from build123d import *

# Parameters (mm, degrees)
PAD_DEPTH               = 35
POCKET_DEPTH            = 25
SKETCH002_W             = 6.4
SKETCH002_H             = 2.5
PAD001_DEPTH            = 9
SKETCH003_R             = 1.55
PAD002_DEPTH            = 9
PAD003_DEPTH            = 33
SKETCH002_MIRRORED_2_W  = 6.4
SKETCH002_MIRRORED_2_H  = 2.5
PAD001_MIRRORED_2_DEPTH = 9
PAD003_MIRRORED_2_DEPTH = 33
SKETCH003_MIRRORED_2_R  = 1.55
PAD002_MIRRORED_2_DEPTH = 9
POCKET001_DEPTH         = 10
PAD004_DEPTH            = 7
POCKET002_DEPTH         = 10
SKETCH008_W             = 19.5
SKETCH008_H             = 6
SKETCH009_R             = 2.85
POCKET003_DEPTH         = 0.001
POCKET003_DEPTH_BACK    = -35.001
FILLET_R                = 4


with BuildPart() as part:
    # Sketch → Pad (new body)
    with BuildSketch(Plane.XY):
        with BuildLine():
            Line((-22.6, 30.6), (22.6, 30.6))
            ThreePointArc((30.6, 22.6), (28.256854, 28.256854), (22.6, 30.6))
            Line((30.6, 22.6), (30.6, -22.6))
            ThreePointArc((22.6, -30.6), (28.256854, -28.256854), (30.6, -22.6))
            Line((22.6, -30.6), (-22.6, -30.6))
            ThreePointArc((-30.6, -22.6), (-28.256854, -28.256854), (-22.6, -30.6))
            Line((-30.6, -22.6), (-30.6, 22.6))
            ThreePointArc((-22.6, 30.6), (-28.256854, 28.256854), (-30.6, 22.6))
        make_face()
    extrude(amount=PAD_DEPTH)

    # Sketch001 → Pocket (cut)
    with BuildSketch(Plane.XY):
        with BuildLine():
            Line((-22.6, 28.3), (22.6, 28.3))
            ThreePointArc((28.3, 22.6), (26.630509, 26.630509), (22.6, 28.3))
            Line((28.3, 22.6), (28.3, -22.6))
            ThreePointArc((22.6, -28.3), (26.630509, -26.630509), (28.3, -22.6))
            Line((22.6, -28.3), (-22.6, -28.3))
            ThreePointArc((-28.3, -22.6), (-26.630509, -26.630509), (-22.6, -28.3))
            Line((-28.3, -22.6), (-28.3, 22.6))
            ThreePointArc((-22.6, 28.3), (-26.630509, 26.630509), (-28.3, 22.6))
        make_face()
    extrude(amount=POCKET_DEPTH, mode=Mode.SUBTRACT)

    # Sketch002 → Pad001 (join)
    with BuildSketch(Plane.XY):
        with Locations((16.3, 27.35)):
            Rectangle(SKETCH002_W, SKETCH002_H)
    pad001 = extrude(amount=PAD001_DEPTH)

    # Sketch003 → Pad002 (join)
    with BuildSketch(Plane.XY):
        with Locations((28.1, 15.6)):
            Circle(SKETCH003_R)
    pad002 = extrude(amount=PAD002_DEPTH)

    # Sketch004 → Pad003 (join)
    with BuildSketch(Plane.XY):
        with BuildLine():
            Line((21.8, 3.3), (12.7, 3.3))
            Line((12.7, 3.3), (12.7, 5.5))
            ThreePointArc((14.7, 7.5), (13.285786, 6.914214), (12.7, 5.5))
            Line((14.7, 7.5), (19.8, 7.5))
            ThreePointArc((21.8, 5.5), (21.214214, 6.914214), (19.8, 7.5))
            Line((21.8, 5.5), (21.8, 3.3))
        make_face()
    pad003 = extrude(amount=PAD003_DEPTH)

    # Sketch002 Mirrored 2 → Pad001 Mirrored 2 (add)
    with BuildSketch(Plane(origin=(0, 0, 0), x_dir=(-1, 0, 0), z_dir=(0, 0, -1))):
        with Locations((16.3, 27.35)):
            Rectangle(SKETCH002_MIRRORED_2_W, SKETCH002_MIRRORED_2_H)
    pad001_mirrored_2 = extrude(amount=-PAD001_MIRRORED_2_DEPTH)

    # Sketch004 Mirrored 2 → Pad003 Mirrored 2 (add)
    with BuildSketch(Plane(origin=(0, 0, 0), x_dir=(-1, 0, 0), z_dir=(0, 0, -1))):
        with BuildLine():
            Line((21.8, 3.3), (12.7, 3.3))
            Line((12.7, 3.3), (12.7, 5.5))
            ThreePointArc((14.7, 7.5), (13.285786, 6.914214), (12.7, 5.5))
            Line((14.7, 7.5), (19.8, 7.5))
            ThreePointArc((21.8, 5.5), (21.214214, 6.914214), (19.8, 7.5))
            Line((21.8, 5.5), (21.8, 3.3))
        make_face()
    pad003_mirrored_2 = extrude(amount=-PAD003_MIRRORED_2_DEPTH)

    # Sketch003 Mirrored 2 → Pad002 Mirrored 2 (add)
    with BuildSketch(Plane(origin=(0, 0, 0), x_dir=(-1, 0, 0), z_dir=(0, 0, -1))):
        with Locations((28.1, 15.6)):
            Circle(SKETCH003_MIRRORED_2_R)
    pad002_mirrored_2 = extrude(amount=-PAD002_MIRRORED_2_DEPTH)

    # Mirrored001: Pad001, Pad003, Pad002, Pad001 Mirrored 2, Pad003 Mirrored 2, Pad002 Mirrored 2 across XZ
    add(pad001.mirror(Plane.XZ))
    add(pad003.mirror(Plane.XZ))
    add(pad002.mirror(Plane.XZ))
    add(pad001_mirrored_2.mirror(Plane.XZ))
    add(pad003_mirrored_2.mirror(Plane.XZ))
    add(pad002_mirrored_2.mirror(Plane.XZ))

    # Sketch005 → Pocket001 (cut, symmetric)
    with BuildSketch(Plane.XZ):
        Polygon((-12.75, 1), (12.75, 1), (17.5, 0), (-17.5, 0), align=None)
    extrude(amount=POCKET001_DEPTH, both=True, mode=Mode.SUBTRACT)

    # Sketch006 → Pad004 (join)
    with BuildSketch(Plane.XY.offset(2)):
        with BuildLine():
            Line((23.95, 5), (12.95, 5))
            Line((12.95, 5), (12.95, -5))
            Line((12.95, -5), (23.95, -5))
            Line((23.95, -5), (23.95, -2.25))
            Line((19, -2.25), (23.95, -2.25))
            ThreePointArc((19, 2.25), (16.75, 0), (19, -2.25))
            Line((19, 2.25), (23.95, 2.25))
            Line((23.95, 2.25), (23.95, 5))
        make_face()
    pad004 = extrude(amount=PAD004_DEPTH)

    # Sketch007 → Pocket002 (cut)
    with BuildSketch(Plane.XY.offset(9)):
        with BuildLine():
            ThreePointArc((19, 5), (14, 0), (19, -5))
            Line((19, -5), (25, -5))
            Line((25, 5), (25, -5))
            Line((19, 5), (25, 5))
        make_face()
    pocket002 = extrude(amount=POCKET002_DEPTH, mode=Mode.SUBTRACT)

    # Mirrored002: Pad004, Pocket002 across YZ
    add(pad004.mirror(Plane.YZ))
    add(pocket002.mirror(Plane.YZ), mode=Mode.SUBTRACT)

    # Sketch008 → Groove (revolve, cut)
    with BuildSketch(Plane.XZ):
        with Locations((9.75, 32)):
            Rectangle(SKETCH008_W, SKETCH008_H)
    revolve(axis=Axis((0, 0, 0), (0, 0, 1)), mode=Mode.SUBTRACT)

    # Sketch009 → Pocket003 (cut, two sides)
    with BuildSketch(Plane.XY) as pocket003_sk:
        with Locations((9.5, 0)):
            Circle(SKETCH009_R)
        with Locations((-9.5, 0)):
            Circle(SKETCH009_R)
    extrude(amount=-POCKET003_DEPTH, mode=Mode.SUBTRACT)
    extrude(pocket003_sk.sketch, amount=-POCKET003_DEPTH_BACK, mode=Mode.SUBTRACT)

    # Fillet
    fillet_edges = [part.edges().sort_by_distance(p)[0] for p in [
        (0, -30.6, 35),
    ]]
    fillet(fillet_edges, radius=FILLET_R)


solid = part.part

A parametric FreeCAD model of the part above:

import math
import FreeCAD as App
import Part
import Sketcher


def edges_at(feature, points):
    """Names of the edges that pass closest to the given points."""
    edges = feature.Shape.Edges
    near = lambda p: min(range(len(edges)), key=lambda i: edges[i].distToShape(Part.Vertex(*p))[0])
    return sorted({f"Edge{near(p) + 1}" for p in points})

doc = App.newDocument("Part")
params = doc.addObject("Spreadsheet::Sheet", "Params")
for row, (alias, value) in enumerate([
    ("sketch1_radius", "8.000001 mm"),
    ("sketch1_width", "45.2 mm"),
    ("pad1_length", "35 mm"),
    ("sketch2_radius", "5.699999 mm"),
    ("sketch2_width", "45.2 mm"),
    ("pocket1_length", "25 mm"),
    ("sketch3_width", "6.4 mm"),
    ("sketch3_height", "2.5 mm"),
    ("pad2_length", "9 mm"),
    ("sketch4_diameter", "3.1 mm"),
    ("pad3_length", "9 mm"),
    ("sketch5_radius", "1.999999 mm"),
    ("sketch5_width", "9.1 mm"),
    ("sketch5_height", "2.2 mm"),
    ("pad4_length", "33 mm"),
    ("sketch6_width", "6.4 mm"),
    ("sketch6_height", "2.5 mm"),
    ("pad5_length", "9 mm"),
    ("sketch7_radius", "1.999999 mm"),
    ("sketch7_width", "9.1 mm"),
    ("sketch7_height", "2.2 mm"),
    ("pad6_length", "33 mm"),
    ("sketch8_diameter", "3.1 mm"),
    ("pad7_length", "9 mm"),
    ("sketch9_width", "35 mm"),
    ("sketch9_width2", "25.5 mm"),
    ("pocket2_length", "20 mm"),
    ("sketch10_width", "11 mm"),
    ("sketch10_height", "10 mm"),
    ("sketch10_radius", "2.25 mm"),
    ("sketch10_width2", "4.95 mm"),
    ("pad8_length", "7 mm"),
    ("sketch11_radius", "5 mm"),
    ("sketch11_width", "6 mm"),
    ("pocket3_length", "10 mm"),
    ("sketch12_height", "6 mm"),
    ("sketch12_width", "19.5 mm"),
    ("groove_angle", "360 deg"),
    ("sketch13_diameter", "5.7 mm"),
    ("fillet_radius", "4 mm"),
], start=1):
    params.set(f"A{row}", alias)
    params.set(f"B{row}", "=" + value)
    params.setAlias(f"B{row}", alias)

body = doc.addObject("PartDesign::Body", "Body")

# Sketch on XY plane
sketch1 = body.newObject("Sketcher::SketchObject", "Sketch")
sketch1.AttachmentSupport = (doc.getObject("XY_Plane"), [""])
sketch1.MapMode = "FlatFace"
sketch1.addGeometry([
    Part.LineSegment(App.Vector(23, 31, 0), App.Vector(-23, 31, 0)),  # 0
    Part.ArcOfCircle(Part.Circle(App.Vector(-23, 23, 0), App.Vector(0, 0, 1), 8), math.radians(90), math.radians(180)),  # 1
    Part.LineSegment(App.Vector(-31, 23, 0), App.Vector(-31, -23, 0)),  # 2
    Part.ArcOfCircle(Part.Circle(App.Vector(-23, -23, 0), App.Vector(0, 0, 1), 8), math.radians(-180), math.radians(-90)),  # 3
    Part.LineSegment(App.Vector(-23, -31, 0), App.Vector(23, -31, 0)),  # 4
    Part.ArcOfCircle(Part.Circle(App.Vector(23, -23, 0), App.Vector(0, 0, 1), 8), math.radians(-90), math.radians(0)),  # 5
    Part.LineSegment(App.Vector(31, -23, 0), App.Vector(31, 23, 0)),  # 6
    Part.ArcOfCircle(Part.Circle(App.Vector(23, 23, 0), App.Vector(0, 0, 1), 8), math.radians(0), math.radians(90)),  # 7
], False)
sketch1.addConstraint([
    Sketcher.Constraint("Tangent", 0, 2, 1, 1),
    Sketcher.Constraint("Tangent", 1, 2, 2, 1),
    Sketcher.Constraint("Tangent", 2, 2, 3, 1),
    Sketcher.Constraint("Tangent", 3, 2, 4, 1),
    Sketcher.Constraint("Tangent", 4, 2, 5, 1),
    Sketcher.Constraint("Tangent", 5, 2, 6, 1),
    Sketcher.Constraint("Tangent", 6, 2, 7, 1),
    Sketcher.Constraint("Tangent", 7, 2, 0, 1),
    Sketcher.Constraint("Horizontal", 0),
    Sketcher.Constraint("Vertical", 2),
    Sketcher.Constraint("Horizontal", 4),
    Sketcher.Constraint("Vertical", 6),
    Sketcher.Constraint("Equal", 1, 3),
    Sketcher.Constraint("Equal", 3, 5),
    Sketcher.Constraint("Equal", 5, 7),
    Sketcher.Constraint("Symmetric", 1, 3, 5, 3, -1, 1),
    Sketcher.Constraint("Equal", 4, 2),
    Sketcher.Constraint("Radius", 1, 8.000001),
    Sketcher.Constraint("DistanceX", 0, 2, 0, 1, 45.2),
])
sketch1.setExpression("Constraints[17]", "Params.sketch1_radius")
sketch1.setExpression("Constraints[18]", "Params.sketch1_width")
pad1 = body.newObject("PartDesign::Pad", "Pad")
pad1.Profile = sketch1
pad1.setExpression("Length", "Params.pad1_length")

# Sketch on XY plane
sketch2 = body.newObject("Sketcher::SketchObject", "Sketch001")
sketch2.AttachmentSupport = (doc.getObject("XY_Plane"), [""])
sketch2.MapMode = "FlatFace"
sketch2.addGeometry([
    Part.LineSegment(App.Vector(23, 28, 0), App.Vector(-23, 28, 0)),  # 0
    Part.ArcOfCircle(Part.Circle(App.Vector(-23, 23, 0), App.Vector(0, 0, 1), 6), math.radians(90), math.radians(180)),  # 1
    Part.LineSegment(App.Vector(-28, 23, 0), App.Vector(-28, -23, 0)),  # 2
    Part.ArcOfCircle(Part.Circle(App.Vector(-23, -23, 0), App.Vector(0, 0, 1), 6), math.radians(180), math.radians(270)),  # 3
    Part.LineSegment(App.Vector(-23, -28, 0), App.Vector(23, -28, 0)),  # 4
    Part.ArcOfCircle(Part.Circle(App.Vector(23, -23, 0), App.Vector(0, 0, 1), 6), math.radians(-90), math.radians(0)),  # 5
    Part.LineSegment(App.Vector(28, -23, 0), App.Vector(28, 23, 0)),  # 6
    Part.ArcOfCircle(Part.Circle(App.Vector(23, 23, 0), App.Vector(0, 0, 1), 6), math.radians(0), math.radians(90)),  # 7
], False)
sketch2.addConstraint([
    Sketcher.Constraint("Tangent", 0, 2, 1, 1),
    Sketcher.Constraint("Tangent", 1, 2, 2, 1),
    Sketcher.Constraint("Tangent", 2, 2, 3, 1),
    Sketcher.Constraint("Tangent", 3, 2, 4, 1),
    Sketcher.Constraint("Tangent", 4, 2, 5, 1),
    Sketcher.Constraint("Tangent", 5, 2, 6, 1),
    Sketcher.Constraint("Tangent", 6, 2, 7, 1),
    Sketcher.Constraint("Tangent", 7, 2, 0, 1),
    Sketcher.Constraint("Horizontal", 0),
    Sketcher.Constraint("Vertical", 2),
    Sketcher.Constraint("Horizontal", 4),
    Sketcher.Constraint("Vertical", 6),
    Sketcher.Constraint("Equal", 1, 3),
    Sketcher.Constraint("Equal", 3, 5),
    Sketcher.Constraint("Equal", 5, 7),
    Sketcher.Constraint("Symmetric", 1, 3, 5, 3, -1, 1),
    Sketcher.Constraint("Equal", 4, 2),
    Sketcher.Constraint("Radius", 1, 5.699999),
    Sketcher.Constraint("DistanceX", 0, 2, 0, 1, 45.2),
])
sketch2.setExpression("Constraints[17]", "Params.sketch2_radius")
sketch2.setExpression("Constraints[18]", "Params.sketch2_width")
pocket1 = body.newObject("PartDesign::Pocket", "Pocket")
pocket1.Profile = sketch2
pocket1.setExpression("Length", "Params.pocket1_length")
pocket1.Reversed = True

# Sketch on XY plane
sketch3 = body.newObject("Sketcher::SketchObject", "Sketch002")
sketch3.AttachmentSupport = (doc.getObject("XY_Plane"), [""])
sketch3.MapMode = "FlatFace"
sketch3.addGeometry([
    Part.LineSegment(App.Vector(13.1, 28.6, 0), App.Vector(13.1, 26.1, 0)),
    Part.LineSegment(App.Vector(13.1, 26.1, 0), App.Vector(19.5, 26.1, 0)),
    Part.LineSegment(App.Vector(19.5, 26.1, 0), App.Vector(19.5, 28.6, 0)),
    Part.LineSegment(App.Vector(19.5, 28.6, 0), App.Vector(13.1, 28.6, 0)),
], False)
sketch3.addConstraint([
    Sketcher.Constraint("Coincident", 0, 2, 1, 1),
    Sketcher.Constraint("Coincident", 1, 2, 2, 1),
    Sketcher.Constraint("Coincident", 2, 2, 3, 1),
    Sketcher.Constraint("Coincident", 3, 2, 0, 1),
    Sketcher.Constraint("Vertical", 0),
    Sketcher.Constraint("Horizontal", 1),
    Sketcher.Constraint("Vertical", 2),
    Sketcher.Constraint("Horizontal", 3),
    Sketcher.Constraint("DistanceX", 1, 1, 1, 2, 6.4),
    Sketcher.Constraint("DistanceY", 0, 2, 0, 1, 2.5),
    Sketcher.Constraint("DistanceX", -1, 1, 0, 2, 13.1),
    Sketcher.Constraint("DistanceY", -1, 1, 0, 2, 26.1),
])
sketch3.setExpression("Constraints[8]", "Params.sketch3_width")
sketch3.setExpression("Constraints[9]", "Params.sketch3_height")
pad2 = body.newObject("PartDesign::Pad", "Pad001")
pad2.Profile = sketch3
pad2.setExpression("Length", "Params.pad2_length")

# Sketch on XY plane
sketch4 = body.newObject("Sketcher::SketchObject", "Sketch003")
sketch4.AttachmentSupport = (doc.getObject("XY_Plane"), [""])
sketch4.MapMode = "FlatFace"
sketch4.addGeometry(Part.Circle(App.Vector(28.1, 15.6, 0), App.Vector(0, 0, 1), 1.6), False)
sketch4.addConstraint([
    Sketcher.Constraint("Diameter", 0, 3.1),
    Sketcher.Constraint("DistanceX", -1, 1, 0, 3, 28.1),
    Sketcher.Constraint("DistanceY", -1, 1, 0, 3, 15.6),
])
sketch4.setExpression("Constraints[0]", "Params.sketch4_diameter")
pad3 = body.newObject("PartDesign::Pad", "Pad002")
pad3.Profile = sketch4
pad3.setExpression("Length", "Params.pad3_length")

# Sketch on XY plane
sketch5 = body.newObject("Sketcher::SketchObject", "Sketch004")
sketch5.AttachmentSupport = (doc.getObject("XY_Plane"), [""])
sketch5.MapMode = "FlatFace"
sketch5.addGeometry([
    Part.LineSegment(App.Vector(12.7, 3.3, 0), App.Vector(21.8, 3.3, 0)),  # 0
    Part.LineSegment(App.Vector(21.8, 3.3, 0), App.Vector(21.8, 5.5, 0)),  # 1
    Part.ArcOfCircle(Part.Circle(App.Vector(19.8, 5.5, 0), App.Vector(0, 0, 1), 2), math.radians(0), math.radians(90)),  # 2
    Part.LineSegment(App.Vector(19.8, 7.5, 0), App.Vector(14.7, 7.5, 0)),  # 3
    Part.ArcOfCircle(Part.Circle(App.Vector(14.7, 5.5, 0), App.Vector(0, 0, 1), 2), math.radians(90), math.radians(180)),  # 4
    Part.LineSegment(App.Vector(12.7, 5.5, 0), App.Vector(12.7, 3.3, 0)),  # 5
], False)
sketch5.addConstraint([
    Sketcher.Constraint("Coincident", 0, 2, 1, 1),
    Sketcher.Constraint("Tangent", 1, 2, 2, 1),
    Sketcher.Constraint("Tangent", 2, 2, 3, 1),
    Sketcher.Constraint("Tangent", 3, 2, 4, 1),
    Sketcher.Constraint("Tangent", 4, 2, 5, 1),
    Sketcher.Constraint("Coincident", 5, 2, 0, 1),
    Sketcher.Constraint("Horizontal", 0),
    Sketcher.Constraint("Vertical", 1),
    Sketcher.Constraint("Horizontal", 3),
    Sketcher.Constraint("Vertical", 5),
    Sketcher.Constraint("Equal", 2, 4),
    Sketcher.Constraint("Radius", 2, 1.999999),
    Sketcher.Constraint("DistanceX", 0, 1, 0, 2, 9.1),
    Sketcher.Constraint("DistanceY", 1, 1, 1, 2, 2.2),
    Sketcher.Constraint("DistanceX", -1, 1, 2, 3, 19.800001),
    Sketcher.Constraint("DistanceY", -1, 1, 2, 3, 5.500001),
])
sketch5.setExpression("Constraints[11]", "Params.sketch5_radius")
sketch5.setExpression("Constraints[12]", "Params.sketch5_width")
sketch5.setExpression("Constraints[13]", "Params.sketch5_height")
pad4 = body.newObject("PartDesign::Pad", "Pad003")
pad4.Profile = sketch5
pad4.setExpression("Length", "Params.pad4_length")

# Sketch on XY plane
sketch6 = body.newObject("Sketcher::SketchObject", "Sketch005")
sketch6.AttachmentSupport = (doc.getObject("XY_Plane"), [""])
sketch6.MapMode = "FlatFace"
sketch6.addGeometry([
    Part.LineSegment(App.Vector(-13.1, 28.6, 0), App.Vector(-13.1, 26.1, 0)),
    Part.LineSegment(App.Vector(-13.1, 26.1, 0), App.Vector(-19.5, 26.1, 0)),
    Part.LineSegment(App.Vector(-19.5, 26.1, 0), App.Vector(-19.5, 28.6, 0)),
    Part.LineSegment(App.Vector(-19.5, 28.6, 0), App.Vector(-13.1, 28.6, 0)),
], False)
sketch6.addConstraint([
    Sketcher.Constraint("Coincident", 0, 2, 1, 1),
    Sketcher.Constraint("Coincident", 1, 2, 2, 1),
    Sketcher.Constraint("Coincident", 2, 2, 3, 1),
    Sketcher.Constraint("Coincident", 3, 2, 0, 1),
    Sketcher.Constraint("Vertical", 0),
    Sketcher.Constraint("Horizontal", 1),
    Sketcher.Constraint("Vertical", 2),
    Sketcher.Constraint("Horizontal", 3),
    Sketcher.Constraint("DistanceX", 1, 2, 1, 1, 6.4),
    Sketcher.Constraint("DistanceY", 0, 2, 0, 1, 2.5),
    Sketcher.Constraint("DistanceX", 0, 2, -1, 1, 13.1),
    Sketcher.Constraint("DistanceY", -1, 1, 0, 2, 26.1),
])
sketch6.setExpression("Constraints[8]", "Params.sketch6_width")
sketch6.setExpression("Constraints[9]", "Params.sketch6_height")
pad5 = body.newObject("PartDesign::Pad", "Pad004")
pad5.Profile = sketch6
pad5.setExpression("Length", "Params.pad5_length")

# Sketch on XY plane
sketch7 = body.newObject("Sketcher::SketchObject", "Sketch006")
sketch7.AttachmentSupport = (doc.getObject("XY_Plane"), [""])
sketch7.MapMode = "FlatFace"
sketch7.addGeometry([
    Part.LineSegment(App.Vector(-12.7, 3.3, 0), App.Vector(-21.8, 3.3, 0)),  # 0
    Part.LineSegment(App.Vector(-21.8, 3.3, 0), App.Vector(-21.8, 5.5, 0)),  # 1
    Part.ArcOfCircle(Part.Circle(App.Vector(-19.8, 5.5, 0), App.Vector(0, 0, 1), 2), math.radians(90), math.radians(180)),  # 2
    Part.LineSegment(App.Vector(-19.8, 7.5, 0), App.Vector(-14.7, 7.5, 0)),  # 3
    Part.ArcOfCircle(Part.Circle(App.Vector(-14.7, 5.5, 0), App.Vector(0, 0, 1), 2), math.radians(0), math.radians(90)),  # 4
    Part.LineSegment(App.Vector(-12.7, 5.5, 0), App.Vector(-12.7, 3.3, 0)),  # 5
], False)
sketch7.addConstraint([
    Sketcher.Constraint("Coincident", 0, 2, 1, 1),
    Sketcher.Constraint("Tangent", 1, 2, 2, 2),
    Sketcher.Constraint("Tangent", 2, 1, 3, 1),
    Sketcher.Constraint("Tangent", 3, 2, 4, 2),
    Sketcher.Constraint("Tangent", 4, 1, 5, 1),
    Sketcher.Constraint("Coincident", 5, 2, 0, 1),
    Sketcher.Constraint("Horizontal", 0),
    Sketcher.Constraint("Vertical", 1),
    Sketcher.Constraint("Horizontal", 3),
    Sketcher.Constraint("Vertical", 5),
    Sketcher.Constraint("Equal", 2, 4),
    Sketcher.Constraint("Radius", 2, 1.999999),
    Sketcher.Constraint("DistanceX", 0, 2, 0, 1, 9.1),
    Sketcher.Constraint("DistanceY", 1, 1, 1, 2, 2.2),
    Sketcher.Constraint("DistanceX", 2, 3, -1, 1, 19.800001),
    Sketcher.Constraint("DistanceY", -1, 1, 2, 3, 5.500001),
])
sketch7.setExpression("Constraints[11]", "Params.sketch7_radius")
sketch7.setExpression("Constraints[12]", "Params.sketch7_width")
sketch7.setExpression("Constraints[13]", "Params.sketch7_height")
pad6 = body.newObject("PartDesign::Pad", "Pad005")
pad6.Profile = sketch7
pad6.setExpression("Length", "Params.pad6_length")

# Sketch on XY plane
sketch8 = body.newObject("Sketcher::SketchObject", "Sketch007")
sketch8.AttachmentSupport = (doc.getObject("XY_Plane"), [""])
sketch8.MapMode = "FlatFace"
sketch8.addGeometry(Part.Circle(App.Vector(-28.1, 15.6, 0), App.Vector(0, 0, 1), 1.6), False)
sketch8.addConstraint([
    Sketcher.Constraint("Diameter", 0, 3.1),
    Sketcher.Constraint("DistanceX", 0, 3, -1, 1, 28.1),
    Sketcher.Constraint("DistanceY", -1, 1, 0, 3, 15.6),
])
sketch8.setExpression("Constraints[0]", "Params.sketch8_diameter")
pad7 = body.newObject("PartDesign::Pad", "Pad006")
pad7.Profile = sketch8
pad7.setExpression("Length", "Params.pad7_length")
doc.recompute()

mirrored = body.newObject("PartDesign::Mirrored", "Mirrored")
mirrored.Originals = [pad2, pad4, pad3, pad5, pad6, pad7]
mirrored.MirrorPlane = (doc.getObject("XZ_Plane"), [""])
body.Tip = mirrored

# Sketch on XZ plane
sketch9 = body.newObject("Sketcher::SketchObject", "Sketch008")
sketch9.AttachmentSupport = (doc.getObject("XZ_Plane"), [""])
sketch9.MapMode = "FlatFace"
sketch9.addGeometry([
    Part.LineSegment(App.Vector(12.8, 1, 0), App.Vector(-12.8, 1, 0)),
    Part.LineSegment(App.Vector(-12.8, 1, 0), App.Vector(-17.5, 0, 0)),
    Part.LineSegment(App.Vector(-17.5, 0, 0), App.Vector(17.5, 0, 0)),
    Part.LineSegment(App.Vector(17.5, 0, 0), App.Vector(12.8, 1, 0)),
], False)
sketch9.addConstraint([
    Sketcher.Constraint("Coincident", 0, 2, 1, 1),
    Sketcher.Constraint("Coincident", 1, 2, 2, 1),
    Sketcher.Constraint("Coincident", 2, 2, 3, 1),
    Sketcher.Constraint("Coincident", 3, 2, 0, 1),
    Sketcher.Constraint("Horizontal", 0),
    Sketcher.Constraint("Horizontal", 2),
    Sketcher.Constraint("Symmetric", 1, 2, 2, 2, -1, 1),
    Sketcher.Constraint("Equal", 1, 3),
    Sketcher.Constraint("DistanceX", 2, 1, 2, 2, 35.0),
    Sketcher.Constraint("DistanceX", 0, 2, 0, 1, 25.5),
    Sketcher.Constraint("DistanceY", -1, 1, 0, 2, 1.0),
])
sketch9.setExpression("Constraints[8]", "Params.sketch9_width")
sketch9.setExpression("Constraints[9]", "Params.sketch9_width2")
pocket2 = body.newObject("PartDesign::Pocket", "Pocket001")
pocket2.Profile = sketch9
pocket2.setExpression("Length", "Params.pocket2_length")
pocket2.Midplane = True

# Sketch on XY plane
sketch10 = body.newObject("Sketcher::SketchObject", "Sketch009")
sketch10.AttachmentSupport = (doc.getObject("XY_Plane"), [""])
sketch10.MapMode = "FlatFace"
sketch10.AttachmentOffset = App.Placement(App.Vector(0, 0, 2), App.Rotation())
sketch10.addGeometry([
    Part.LineSegment(App.Vector(23.9, 5, 0), App.Vector(12.9, 5, 0)),  # 0
    Part.LineSegment(App.Vector(12.9, 5, 0), App.Vector(12.9, -5, 0)),  # 1
    Part.LineSegment(App.Vector(12.9, -5, 0), App.Vector(23.9, -5, 0)),  # 2
    Part.LineSegment(App.Vector(23.9, -5, 0), App.Vector(23.9, -2.2, 0)),  # 3
    Part.LineSegment(App.Vector(23.9, -2.2, 0), App.Vector(19, -2.2, 0)),  # 4
    Part.ArcOfCircle(Part.Circle(App.Vector(19, 0, 0), App.Vector(0, 0, 1), 2.2), math.radians(90), math.radians(270)),  # 5
    Part.LineSegment(App.Vector(19, 2.2, 0), App.Vector(23.9, 2.2, 0)),  # 6
    Part.LineSegment(App.Vector(23.9, 2.2, 0), App.Vector(23.9, 5, 0)),  # 7
], False)
sketch10.addConstraint([
    Sketcher.Constraint("Coincident", 0, 2, 1, 1),
    Sketcher.Constraint("Coincident", 1, 2, 2, 1),
    Sketcher.Constraint("Coincident", 2, 2, 3, 1),
    Sketcher.Constraint("Coincident", 3, 2, 4, 1),
    Sketcher.Constraint("Tangent", 4, 2, 5, 2),
    Sketcher.Constraint("Tangent", 5, 1, 6, 1),
    Sketcher.Constraint("Coincident", 6, 2, 7, 1),
    Sketcher.Constraint("Coincident", 7, 2, 0, 1),
    Sketcher.Constraint("Horizontal", 0),
    Sketcher.Constraint("Vertical", 1),
    Sketcher.Constraint("Horizontal", 2),
    Sketcher.Constraint("Vertical", 3),
    Sketcher.Constraint("Horizontal", 4),
    Sketcher.Constraint("Horizontal", 6),
    Sketcher.Constraint("Vertical", 7),
    Sketcher.Constraint("Symmetric", 3, 2, 6, 2, -1),
    Sketcher.Constraint("Equal", 3, 7),
    Sketcher.Constraint("DistanceX", 0, 2, 0, 1, 11.0),
    Sketcher.Constraint("DistanceY", 1, 2, 1, 1, 10.0),
    Sketcher.Constraint("Radius", 5, 2.25),
    Sketcher.Constraint("DistanceX", -1, 1, 5, 3, 19.0),
    Sketcher.Constraint("DistanceX", 4, 2, 4, 1, 4.95),
])
sketch10.setExpression("Constraints[17]", "Params.sketch10_width")
sketch10.setExpression("Constraints[18]", "Params.sketch10_height")
sketch10.setExpression("Constraints[19]", "Params.sketch10_radius")
sketch10.setExpression("Constraints[21]", "Params.sketch10_width2")
pad8 = body.newObject("PartDesign::Pad", "Pad007")
pad8.Profile = sketch10
pad8.setExpression("Length", "Params.pad8_length")

# Sketch on XY plane
sketch11 = body.newObject("Sketcher::SketchObject", "Sketch010")
sketch11.AttachmentSupport = (doc.getObject("XY_Plane"), [""])
sketch11.MapMode = "FlatFace"
sketch11.AttachmentOffset = App.Placement(App.Vector(0, 0, 9), App.Rotation())
sketch11.addGeometry([
    Part.ArcOfCircle(Part.Circle(App.Vector(19, 0, 0), App.Vector(0, 0, 1), 5), math.radians(90), math.radians(270)),
    Part.LineSegment(App.Vector(19, -5, 0), App.Vector(25, -5, 0)),
    Part.LineSegment(App.Vector(25, -5, 0), App.Vector(25, 5, 0)),
    Part.LineSegment(App.Vector(25, 5, 0), App.Vector(19, 5, 0)),
], False)
sketch11.addConstraint([
    Sketcher.Constraint("Tangent", 0, 2, 1, 1),
    Sketcher.Constraint("Coincident", 1, 2, 2, 1),
    Sketcher.Constraint("Coincident", 2, 2, 3, 1),
    Sketcher.Constraint("Tangent", 3, 2, 0, 1),
    Sketcher.Constraint("Horizontal", 1),
    Sketcher.Constraint("Vertical", 2),
    Sketcher.Constraint("Horizontal", 3),
    Sketcher.Constraint("PointOnObject", 0, 3, -1),
    Sketcher.Constraint("Radius", 0, 5.0),
    Sketcher.Constraint("DistanceX", 1, 1, 1, 2, 6.0),
    Sketcher.Constraint("DistanceX", -1, 1, 0, 3, 19.0),
])
sketch11.setExpression("Constraints[8]", "Params.sketch11_radius")
sketch11.setExpression("Constraints[9]", "Params.sketch11_width")
pocket3 = body.newObject("PartDesign::Pocket", "Pocket002")
pocket3.Profile = sketch11
pocket3.setExpression("Length", "Params.pocket3_length")
pocket3.Reversed = True
doc.recompute()

mirrored2 = body.newObject("PartDesign::Mirrored", "Mirrored001")
mirrored2.Originals = [pad8, pocket3]
mirrored2.MirrorPlane = (doc.getObject("YZ_Plane"), [""])
body.Tip = mirrored2

# Sketch on XZ plane
sketch12 = body.newObject("Sketcher::SketchObject", "Sketch011")
sketch12.AttachmentSupport = (doc.getObject("XZ_Plane"), [""])
sketch12.MapMode = "FlatFace"
sketch12.addGeometry([
    Part.LineSegment(App.Vector(0, 35, 0), App.Vector(0, 29, 0)),
    Part.LineSegment(App.Vector(0, 29, 0), App.Vector(20, 29, 0)),
    Part.LineSegment(App.Vector(20, 29, 0), App.Vector(20, 35, 0)),
    Part.LineSegment(App.Vector(20, 35, 0), App.Vector(0, 35, 0)),
], False)
sketch12.addConstraint([
    Sketcher.Constraint("Coincident", 0, 2, 1, 1),
    Sketcher.Constraint("Coincident", 1, 2, 2, 1),
    Sketcher.Constraint("Coincident", 2, 2, 3, 1),
    Sketcher.Constraint("Coincident", 3, 2, 0, 1),
    Sketcher.Constraint("Vertical", 0),
    Sketcher.Constraint("Horizontal", 1),
    Sketcher.Constraint("Vertical", 2),
    Sketcher.Constraint("Horizontal", 3),
    Sketcher.Constraint("PointOnObject", 0, 2, -2),
    Sketcher.Constraint("DistanceY", 0, 2, 0, 1, 6.0),
    Sketcher.Constraint("DistanceX", 1, 1, 1, 2, 19.5),
    Sketcher.Constraint("DistanceY", -1, 1, 0, 2, 29.0),
])
sketch12.setExpression("Constraints[9]", "Params.sketch12_height")
sketch12.setExpression("Constraints[10]", "Params.sketch12_width")
groove = body.newObject("PartDesign::Groove", "Groove")
groove.Profile = sketch12
groove.ReferenceAxis = (sketch12, ["V_Axis"])
groove.setExpression("Angle", "Params.groove_angle")

# Sketch on XY plane
sketch13 = body.newObject("Sketcher::SketchObject", "Sketch012")
sketch13.AttachmentSupport = (doc.getObject("XY_Plane"), [""])
sketch13.MapMode = "FlatFace"
sketch13.addGeometry([
    Part.Circle(App.Vector(9.5, 0, 0), App.Vector(0, 0, 1), 2.9),
    Part.Circle(App.Vector(-9.5, 0, 0), App.Vector(0, 0, 1), 2.9),
], False)
sketch13.addConstraint([
    Sketcher.Constraint("Equal", 0, 1),
    Sketcher.Constraint("Symmetric", 0, 3, 1, 3, -1, 1),
    Sketcher.Constraint("PointOnObject", 0, 3, -1),
    Sketcher.Constraint("Diameter", 0, 5.7),
    Sketcher.Constraint("DistanceX", 1, 3, 0, 3, 19.0),
])
sketch13.setExpression("Constraints[3]", "Params.sketch13_diameter")
pocket4 = body.newObject("PartDesign::Pocket", "Pocket003")
pocket4.Profile = sketch13
pocket4.Type = "ThroughAll"
pocket4.Midplane = True
doc.recompute()

fillet = body.newObject("PartDesign::Fillet", "Fillet")
fillet.Base = (pocket4, edges_at(pocket4, [(0, -30.6, 35)]))
fillet.setExpression("Radius", "Params.fillet_radius")

doc.recompute()
